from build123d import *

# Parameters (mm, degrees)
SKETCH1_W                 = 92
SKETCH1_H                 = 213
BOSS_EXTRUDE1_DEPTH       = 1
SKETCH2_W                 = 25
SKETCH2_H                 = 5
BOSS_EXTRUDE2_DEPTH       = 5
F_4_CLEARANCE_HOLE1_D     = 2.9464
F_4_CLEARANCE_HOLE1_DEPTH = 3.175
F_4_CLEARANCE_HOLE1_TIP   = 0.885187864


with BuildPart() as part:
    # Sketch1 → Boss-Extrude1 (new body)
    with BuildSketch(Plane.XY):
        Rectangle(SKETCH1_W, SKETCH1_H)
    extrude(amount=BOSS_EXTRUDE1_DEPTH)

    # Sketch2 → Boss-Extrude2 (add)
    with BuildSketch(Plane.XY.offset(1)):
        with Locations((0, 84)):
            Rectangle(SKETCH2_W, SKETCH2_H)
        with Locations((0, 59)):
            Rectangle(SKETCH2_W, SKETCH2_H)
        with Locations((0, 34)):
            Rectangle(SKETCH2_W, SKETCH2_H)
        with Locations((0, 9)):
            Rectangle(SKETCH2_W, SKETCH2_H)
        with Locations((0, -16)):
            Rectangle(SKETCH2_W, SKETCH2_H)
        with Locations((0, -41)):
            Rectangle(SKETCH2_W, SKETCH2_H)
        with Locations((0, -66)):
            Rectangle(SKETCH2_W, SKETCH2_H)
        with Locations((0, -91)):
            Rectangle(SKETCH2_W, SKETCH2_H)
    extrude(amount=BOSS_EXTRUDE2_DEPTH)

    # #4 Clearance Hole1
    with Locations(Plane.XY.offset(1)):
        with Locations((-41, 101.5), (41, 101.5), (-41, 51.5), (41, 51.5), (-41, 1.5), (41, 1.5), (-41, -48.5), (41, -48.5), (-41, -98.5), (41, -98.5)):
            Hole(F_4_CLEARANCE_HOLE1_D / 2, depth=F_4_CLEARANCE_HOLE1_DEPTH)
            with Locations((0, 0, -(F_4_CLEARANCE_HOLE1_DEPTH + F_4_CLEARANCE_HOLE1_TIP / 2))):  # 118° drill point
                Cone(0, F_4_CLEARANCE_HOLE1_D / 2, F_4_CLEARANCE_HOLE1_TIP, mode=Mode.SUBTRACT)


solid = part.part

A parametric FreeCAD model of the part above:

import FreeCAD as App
import Part
import Sketcher

doc = App.newDocument("Part")
body = doc.addObject("PartDesign::Body", "Body")

sketch1 = doc.addObject("Sketcher::SketchObject", "Sketch")
body.addObject(sketch1)
sketch1.AttachmentSupport = (doc.XY_Plane, [""])
sketch1.MapMode = "FlatFace"
sketch1.addGeometry([
    Part.LineSegment(App.Vector(-46, 106, 0), App.Vector(-46, -106, 0)),
    Part.LineSegment(App.Vector(-46, -106, 0), App.Vector(46, -106, 0)),
    Part.LineSegment(App.Vector(46, -106, 0), App.Vector(46, 106, 0)),
    Part.LineSegment(App.Vector(46, 106, 0), App.Vector(-46, 106, 0)),
], False)
sketch1.addConstraint([
    Sketcher.Constraint("Coincident", 0, 2, 1, 1),
    Sketcher.Constraint("Coincident", 1, 2, 2, 1),
    Sketcher.Constraint("Coincident", 2, 2, 3, 1),
    Sketcher.Constraint("Coincident", 3, 2, 0, 1),
    Sketcher.Constraint("Vertical", 0),
    Sketcher.Constraint("Horizontal", 1),
    Sketcher.Constraint("Vertical", 2),
    Sketcher.Constraint("Horizontal", 3),
    Sketcher.Constraint("Symmetric", 0, 2, 2, 2, -1, 1),
    Sketcher.Constraint("DistanceX", 1, 1, 1, 2, 92.0),
    Sketcher.Constraint("DistanceY", 0, 2, 0, 1, 213.0),
])
pad1 = doc.addObject("PartDesign::Pad", "Pad")
body.addObject(pad1)
pad1.Profile = sketch1
pad1.Length = 1

sketch2 = doc.addObject("Sketcher::SketchObject", "Sketch001")
body.addObject(sketch2)
sketch2.AttachmentSupport = (doc.XY_Plane, [""])
sketch2.MapMode = "FlatFace"
sketch2.AttachmentOffset = App.Placement(App.Vector(0, 0, 1), App.Rotation())
sketch2.addGeometry([
    Part.LineSegment(App.Vector(-12, 86, 0), App.Vector(-12, 82, 0)),
    Part.LineSegment(App.Vector(-12, 82, 0), App.Vector(12, 82, 0)),
    Part.LineSegment(App.Vector(12, 82, 0), App.Vector(12, 86, 0)),
    Part.LineSegment(App.Vector(12, 86, 0), App.Vector(-12, 86, 0)),
    Part.LineSegment(App.Vector(-12, 62, 0), App.Vector(-12, 56, 0)),
    Part.LineSegment(App.Vector(-12, 56, 0), App.Vector(12, 56, 0)),
    Part.LineSegment(App.Vector(12, 56, 0), App.Vector(12, 62, 0)),
    Part.LineSegment(App.Vector(12, 62, 0), App.Vector(-12, 62, 0)),
    Part.LineSegment(App.Vector(-12, 36, 0), App.Vector(-12, 32, 0)),
    Part.LineSegment(App.Vector(-12, 32, 0), App.Vector(12, 32, 0)),
    Part.LineSegment(App.Vector(12, 32, 0), App.Vector(12, 36, 0)),
    Part.LineSegment(App.Vector(12, 36, 0), App.Vector(-12, 36, 0)),
    Part.LineSegment(App.Vector(-12, 12, 0), App.Vector(-12, 6, 0)),
    Part.LineSegment(App.Vector(-12, 6, 0), App.Vector(12, 6, 0)),
    Part.LineSegment(App.Vector(12, 6, 0), App.Vector(12, 12, 0)),
    Part.LineSegment(App.Vector(12, 12, 0), App.Vector(-12, 12, 0)),
    Part.LineSegment(App.Vector(-12, -14, 0), App.Vector(-12, -18, 0)),
    Part.LineSegment(App.Vector(-12, -18, 0), App.Vector(12, -18, 0)),
    Part.LineSegment(App.Vector(12, -18, 0), App.Vector(12, -14, 0)),
    Part.LineSegment(App.Vector(12, -14, 0), App.Vector(-12, -14, 0)),
    Part.LineSegment(App.Vector(-12, -38, 0), App.Vector(-12, -44, 0)),
    Part.LineSegment(App.Vector(-12, -44, 0), App.Vector(12, -44, 0)),
    Part.LineSegment(App.Vector(12, -44, 0), App.Vector(12, -38, 0)),
    Part.LineSegment(App.Vector(12, -38, 0), App.Vector(-12, -38, 0)),
    Part.LineSegment(App.Vector(-12, -64, 0), App.Vector(-12, -68, 0)),
    Part.LineSegment(App.Vector(-12, -68, 0), App.Vector(12, -68, 0)),
    Part.LineSegment(App.Vector(12, -68, 0), App.Vector(12, -64, 0)),
    Part.LineSegment(App.Vector(12, -64, 0), App.Vector(-12, -64, 0)),
    Part.LineSegment(App.Vector(-12, -88, 0), App.Vector(-12, -94, 0)),
    Part.LineSegment(App.Vector(-12, -94, 0), App.Vector(12, -94, 0)),
    Part.LineSegment(App.Vector(12, -94, 0), App.Vector(12, -88, 0)),
    Part.LineSegment(App.Vector(12, -88, 0), App.Vector(-12, -88, 0)),
], False)
sketch2.addConstraint([
    Sketcher.Constraint("Coincident", 0, 2, 1, 1),
    Sketcher.Constraint("Coincident", 1, 2, 2, 1),
    Sketcher.Constraint("Coincident", 2, 2, 3, 1),
    Sketcher.Constraint("Coincident", 3, 2, 0, 1),
    Sketcher.Constraint("Coincident", 4, 2, 5, 1),
    Sketcher.Constraint("Coincident", 5, 2, 6, 1),
    Sketcher.Constraint("Coincident", 6, 2, 7, 1),
    Sketcher.Constraint("Coincident", 7, 2, 4, 1),
    Sketcher.Constraint("Coincident", 8, 2, 9, 1),
    Sketcher.Constraint("Coincident", 9, 2, 10, 1),
    Sketcher.Constraint("Coincident", 10, 2, 11, 1),
    Sketcher.Constraint("Coincident", 11, 2, 8, 1),
    Sketcher.Constraint("Coincident", 12, 2, 13, 1),
    Sketcher.Constraint("Coincident", 13, 2, 14, 1),
    Sketcher.Constraint("Coincident", 14, 2, 15, 1),
    Sketcher.Constraint("Coincident", 15, 2, 12, 1),
    Sketcher.Constraint("Coincident", 16, 2, 17, 1),
    Sketcher.Constraint("Coincident", 17, 2, 18, 1),
    Sketcher.Constraint("Coincident", 18, 2, 19, 1),
    Sketcher.Constraint("Coincident", 19, 2, 16, 1),
    Sketcher.Constraint("Coincident", 20, 2, 21, 1),
    Sketcher.Constraint("Coincident", 21, 2, 22, 1),
    Sketcher.Constraint("Coincident", 22, 2, 23, 1),
    Sketcher.Constraint("Coincident", 23, 2, 20, 1),
    Sketcher.Constraint("Coincident", 24, 2, 25, 1),
    Sketcher.Constraint("Coincident", 25, 2, 26, 1),
    Sketcher.Constraint("Coincident", 26, 2, 27, 1),
    Sketcher.Constraint("Coincident", 27, 2, 24, 1),
    Sketcher.Constraint("Coincident", 28, 2, 29, 1),
    Sketcher.Constraint("Coincident", 29, 2, 30, 1),
    Sketcher.Constraint("Coincident", 30, 2, 31, 1),
    Sketcher.Constraint("Coincident", 31, 2, 28, 1),
    Sketcher.Constraint("Vertical", 0),
    Sketcher.Constraint("Horizontal", 1),
    Sketcher.Constraint("Vertical", 2),
    Sketcher.Constraint("Horizontal", 3),
    Sketcher.Constraint("Vertical", 4),
    Sketcher.Constraint("Horizontal", 5),
    Sketcher.Constraint("Vertical", 6),
    Sketcher.Constraint("Horizontal", 7),
    Sketcher.Constraint("Vertical", 8),
    Sketcher.Constraint("Horizontal", 9),
    Sketcher.Constraint("Vertical", 10),
    Sketcher.Constraint("Horizontal", 11),
    Sketcher.Constraint("Vertical", 12),
    Sketcher.Constraint("Horizontal", 13),
    Sketcher.Constraint("Vertical", 14),
    Sketcher.Constraint("Horizontal", 15),
    Sketcher.Constraint("Vertical", 16),
    Sketcher.Constraint("Horizontal", 17),
    Sketcher.Constraint("Vertical", 18),
    Sketcher.Constraint("Horizontal", 19),
    Sketcher.Constraint("Vertical", 20),
    Sketcher.Constraint("Horizontal", 21),
    Sketcher.Constraint("Vertical", 22),
    Sketcher.Constraint("Horizontal", 23),
    Sketcher.Constraint("Vertical", 24),
    Sketcher.Constraint("Horizontal", 25),
    Sketcher.Constraint("Vertical", 26),
    Sketcher.Constraint("Horizontal", 27),
    Sketcher.Constraint("Vertical", 28),
    Sketcher.Constraint("Horizontal", 29),
    Sketcher.Constraint("Vertical", 30),
    Sketcher.Constraint("Horizontal", 31),
    Sketcher.Constraint("Vertical", 3, 2, 4, 2),
    Sketcher.Constraint("Vertical", 2, 2, 5, 2),
    Sketcher.Constraint("Vertical", 7, 2, 8, 2),
    Sketcher.Constraint("Vertical", 6, 2, 9, 2),
    Sketcher.Constraint("Vertical", 11, 2, 12, 2),
    Sketcher.Constraint("Vertical", 10, 2, 13, 2),
    Sketcher.Constraint("Vertical", 15, 2, 16, 2),
    Sketcher.Constraint("Vertical", 14, 2, 17, 2),
    Sketcher.Constraint("Vertical", 19, 2, 20, 2),
    Sketcher.Constraint("Vertical", 18, 2, 21, 2),
    Sketcher.Constraint("Vertical", 23, 2, 24, 2),
    Sketcher.Constraint("Vertical", 22, 2, 25, 2),
    Sketcher.Constraint("Vertical", 27, 2, 28, 2),
    Sketcher.Constraint("Vertical", 26, 2, 29, 2),
    Sketcher.Constraint("Equal", 2, 4),
    Sketcher.Constraint("Equal", 6, 8),
    Sketcher.Constraint("Equal", 10, 12),
    Sketcher.Constraint("Equal", 14, 16),
    Sketcher.Constraint("Equal", 18, 20),
    Sketcher.Constraint("Equal", 22, 24),
    Sketcher.Constraint("Equal", 26, 28),
    Sketcher.Constraint("DistanceX", 1, 1, 1, 2, 25.0),
    Sketcher.Constraint("DistanceY", 0, 2, 0, 1, 5.0),
    Sketcher.Constraint("DistanceY", 4, 2, 0, 2, 25.0),
    Sketcher.Constraint("DistanceY", 8, 2, 4, 2, 25.0),
    Sketcher.Constraint("DistanceY", 12, 2, 8, 2, 25.0),
    Sketcher.Constraint("DistanceY", 16, 2, 12, 2, 25.0),
    Sketcher.Constraint("DistanceY", 20, 2, 16, 2, 25.0),
    Sketcher.Constraint("DistanceY", 24, 2, 20, 2, 25.0),
    Sketcher.Constraint("DistanceY", 28, 2, 24, 2, 25.0),
    Sketcher.Constraint("DistanceX", 0, 2, -1, 1, 12.5),
    Sketcher.Constraint("DistanceY", -1, 1, 0, 2, 81.5),
])
pad2 = doc.addObject("PartDesign::Pad", "Pad001")
body.addObject(pad2)
pad2.Profile = sketch2
pad2.Length = 5

sketch3 = doc.addObject("Sketcher::SketchObject", "Sketch002")
body.addObject(sketch3)
sketch3.AttachmentSupport = (doc.XY_Plane, [""])
sketch3.MapMode = "FlatFace"
sketch3.AttachmentOffset = App.Placement(App.Vector(0, 0, 1), App.Rotation())
sketch3.addGeometry([
    Part.Circle(App.Vector(-41, 101.5, 0), App.Vector(0, 0, 1), 1.5),
    Part.Circle(App.Vector(41, 101.5, 0), App.Vector(0, 0, 1), 1.5),
    Part.Circle(App.Vector(-41, 51.5, 0), App.Vector(0, 0, 1), 1.5),
    Part.Circle(App.Vector(41, 51.5, 0), App.Vector(0, 0, 1), 1.5),
    Part.Circle(App.Vector(-41, 1.5, 0), App.Vector(0, 0, 1), 1.5),
    Part.Circle(App.Vector(41, 1.5, 0), App.Vector(0, 0, 1), 1.5),
    Part.Circle(App.Vector(-41, -48.5, 0), App.Vector(0, 0, 1), 1.5),
    Part.Circle(App.Vector(41, -48.5, 0), App.Vector(0, 0, 1), 1.5),
    Part.Circle(App.Vector(-41, -98.5, 0), App.Vector(0, 0, 1), 1.5),
    Part.Circle(App.Vector(41, -98.5, 0), App.Vector(0, 0, 1), 1.5),
], False)
sketch3.addConstraint([
    Sketcher.Constraint("Equal", 0, 1),
    Sketcher.Constraint("Equal", 1, 2),
    Sketcher.Constraint("Equal", 2, 3),
    Sketcher.Constraint("Equal", 3, 4),
    Sketcher.Constraint("Equal", 4, 5),
    Sketcher.Constraint("Equal", 5, 6),
    Sketcher.Constraint("Equal", 6, 7),
    Sketcher.Constraint("Equal", 7, 8),
    Sketcher.Constraint("Equal", 8, 9),
    Sketcher.Constraint("Symmetric", 0, 3, 1, 3, -2),
    Sketcher.Constraint("Symmetric", 2, 3, 3, 3, -2),
    Sketcher.Constraint("Symmetric", 4, 3, 5, 3, -2),
    Sketcher.Constraint("Symmetric", 6, 3, 7, 3, -2),
    Sketcher.Constraint("Symmetric", 8, 3, 9, 3, -2),
    Sketcher.Constraint("Vertical", 0, 3, 2, 3),
    Sketcher.Constraint("Vertical", 2, 3, 4, 3),
    Sketcher.Constraint("Vertical", 4, 3, 6, 3),
    Sketcher.Constraint("Vertical", 6, 3, 8, 3),
    Sketcher.Constraint("DistanceX", 0, 3, -1, 1, 41.0),
    Sketcher.Constraint("DistanceY", 2, 3, 0, 3, 50.0),
    Sketcher.Constraint("DistanceY", 4, 3, 2, 3, 50.0),
    Sketcher.Constraint("DistanceY", 6, 3, 4, 3, 50.0),
    Sketcher.Constraint("DistanceY", 8, 3, 6, 3, 50.0),
    Sketcher.Constraint("Diameter", 0, 2.9464),
    Sketcher.Constraint("DistanceY", -1, 1, 0, 3, 101.5),
])
doc.recompute()
hole = doc.addObject("PartDesign::Hole", "Hole")
body.addObject(hole)
hole.Profile = sketch3
hole.ThreadType = "None"
hole.Diameter = 2.9464
hole.DepthType = "Dimension"
hole.Depth = 3.175
hole.DrillPoint = "Angled"
hole.DrillPointAngle = 118

doc.recompute()
